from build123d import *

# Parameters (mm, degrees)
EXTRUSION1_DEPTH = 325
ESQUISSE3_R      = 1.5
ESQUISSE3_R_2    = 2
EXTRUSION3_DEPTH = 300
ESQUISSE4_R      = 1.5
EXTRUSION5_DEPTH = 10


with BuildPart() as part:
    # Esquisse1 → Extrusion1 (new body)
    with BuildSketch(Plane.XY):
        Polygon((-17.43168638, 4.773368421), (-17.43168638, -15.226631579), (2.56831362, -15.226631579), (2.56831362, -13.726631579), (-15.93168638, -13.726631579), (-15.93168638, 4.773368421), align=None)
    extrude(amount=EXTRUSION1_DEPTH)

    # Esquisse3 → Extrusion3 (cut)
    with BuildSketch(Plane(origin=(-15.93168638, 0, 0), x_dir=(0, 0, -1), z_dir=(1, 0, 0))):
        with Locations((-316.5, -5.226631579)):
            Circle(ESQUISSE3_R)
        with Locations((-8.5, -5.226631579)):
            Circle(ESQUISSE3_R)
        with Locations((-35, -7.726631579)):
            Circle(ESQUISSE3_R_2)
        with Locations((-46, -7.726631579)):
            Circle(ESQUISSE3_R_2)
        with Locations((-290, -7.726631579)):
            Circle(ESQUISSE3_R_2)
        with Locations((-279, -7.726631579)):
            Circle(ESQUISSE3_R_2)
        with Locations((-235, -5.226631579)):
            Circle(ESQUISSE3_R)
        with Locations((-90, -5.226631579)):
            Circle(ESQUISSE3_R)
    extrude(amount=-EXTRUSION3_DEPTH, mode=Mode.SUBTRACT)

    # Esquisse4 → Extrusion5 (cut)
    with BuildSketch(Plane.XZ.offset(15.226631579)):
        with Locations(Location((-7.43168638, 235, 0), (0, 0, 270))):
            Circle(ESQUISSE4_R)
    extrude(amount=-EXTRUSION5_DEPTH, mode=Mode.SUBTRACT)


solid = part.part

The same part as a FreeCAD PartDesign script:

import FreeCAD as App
import Part
import Sketcher

doc = App.newDocument("Part")
body = doc.addObject("PartDesign::Body", "Body")

# Sketch on XY plane
sketch1 = doc.addObject("Sketcher::SketchObject", "Sketch")
body.addObject(sketch1)
sketch1.AttachmentSupport = (doc.XY_Plane, [""])
sketch1.MapMode = "FlatFace"
sketch1.addGeometry([
    Part.LineSegment(App.Vector(-17.4, 4.8, 0), App.Vector(-17.4, -15.2, 0)),  # 0
    Part.LineSegment(App.Vector(-17.4, -15.2, 0), App.Vector(2.6, -15.2, 0)),  # 1
    Part.LineSegment(App.Vector(2.6, -15.2, 0), App.Vector(2.6, -13.7, 0)),  # 2
    Part.LineSegment(App.Vector(2.6, -13.7, 0), App.Vector(-15.9, -13.7, 0)),  # 3
    Part.LineSegment(App.Vector(-15.9, -13.7, 0), App.Vector(-15.9, 4.8, 0)),  # 4
    Part.LineSegment(App.Vector(-15.9, 4.8, 0), App.Vector(-17.4, 4.8, 0)),  # 5
], False)
sketch1.addConstraint([
    Sketcher.Constraint("Coincident", 0, 2, 1, 1),
    Sketcher.Constraint("Coincident", 1, 2, 2, 1),
    Sketcher.Constraint("Coincident", 2, 2, 3, 1),
    Sketcher.Constraint("Coincident", 3, 2, 4, 1),
    Sketcher.Constraint("Coincident", 4, 2, 5, 1),
    Sketcher.Constraint("Coincident", 5, 2, 0, 1),
    Sketcher.Constraint("Vertical", 0),
    Sketcher.Constraint("Horizontal", 1),
    Sketcher.Constraint("Vertical", 2),
    Sketcher.Constraint("Horizontal", 3),
    Sketcher.Constraint("Vertical", 4),
    Sketcher.Constraint("Horizontal", 5),
    Sketcher.Constraint("Equal", 1, 0),
    Sketcher.Constraint("Equal", 5, 2),
    Sketcher.Constraint("DistanceX", 1, 1, 1, 2, 20.0),
    Sketcher.Constraint("DistanceX", 3, 2, 3, 1, 18.5),
    Sketcher.Constraint("DistanceY", 0, 2, -1, 1, 15.226632),
    Sketcher.Constraint("DistanceX", 0, 2, -1, 1, 17.431686),
])
pad1 = doc.addObject("PartDesign::Pad", "Pad")
body.addObject(pad1)
pad1.Profile = sketch1
pad1.Length = 325

# Sketch on YZ plane
sketch2 = doc.addObject("Sketcher::SketchObject", "Sketch001")
body.addObject(sketch2)
sketch2.AttachmentSupport = (doc.YZ_Plane, [""])
sketch2.MapMode = "FlatFace"
sketch2.AttachmentOffset = App.Placement(App.Vector(0, 0, -15.931686), App.Rotation())
sketch2.addGeometry([
    Part.Circle(App.Vector(-5.2, 316.5, 0), App.Vector(0, 0, 1), 1.5),  # 0
    Part.Circle(App.Vector(-5.2, 8.5, 0), App.Vector(0, 0, 1), 1.5),  # 1
    Part.Circle(App.Vector(-7.7, 35, 0), App.Vector(0, 0, 1), 2),  # 2
    Part.Circle(App.Vector(-7.7, 46, 0), App.Vector(0, 0, 1), 2),  # 3
    Part.Circle(App.Vector(-7.7, 290, 0), App.Vector(0, 0, 1), 2),  # 4
    Part.Circle(App.Vector(-7.7, 279, 0), App.Vector(0, 0, 1), 2),  # 5
    Part.Circle(App.Vector(-5.2, 235, 0), App.Vector(0, 0, 1), 1.5),  # 6
    Part.Circle(App.Vector(-5.2, 90, 0), App.Vector(0, 0, 1), 1.5),  # 7
], False)
sketch2.addConstraint([
    Sketcher.Constraint("Equal", 0, 1),
    Sketcher.Constraint("Equal", 2, 3),
    Sketcher.Constraint("Equal", 3, 4),
    Sketcher.Constraint("Equal", 4, 5),
    Sketcher.Constraint("Equal", 1, 6),
    Sketcher.Constraint("Equal", 6, 7),
    Sketcher.Constraint("Vertical", 0, 3, 1, 3),
    Sketcher.Constraint("Vertical", 2, 3, 3, 3),
    Sketcher.Constraint("Vertical", 3, 3, 4, 3),
    Sketcher.Constraint("Vertical", 4, 3, 5, 3),
    Sketcher.Constraint("Vertical", 1, 3, 6, 3),
    Sketcher.Constraint("Vertical", 6, 3, 7, 3),
    Sketcher.Constraint("Diameter", 0, 3.0),
    Sketcher.Constraint("Diameter", 2, 4.0),
    Sketcher.Constraint("DistanceY", -1, 1, 2, 3, 35.0),
    Sketcher.Constraint("DistanceY", -1, 1, 3, 3, 46.0),
    Sketcher.Constraint("DistanceY", -1, 1, 4, 3, 290.0),
    Sketcher.Constraint("DistanceY", -1, 1, 5, 3, 279.0),
    Sketcher.Constraint("DistanceY", -1, 1, 6, 3, 235.0),
    Sketcher.Constraint("DistanceY", -1, 1, 7, 3, 90.0),
    Sketcher.Constraint("DistanceY", 1, 3, 0, 3, 308.0),
    Sketcher.Constraint("DistanceY", -1, 1, 0, 3, 316.5),
    Sketcher.Constraint("DistanceX", 2, 3, 1, 3, 2.5),
    Sketcher.Constraint("DistanceX", 0, 3, -1, 1, 5.226632),
])
pocket1 = doc.addObject("PartDesign::Pocket", "Pocket")
body.addObject(pocket1)
pocket1.Profile = sketch2
pocket1.Length = 300

# Sketch on XZ plane
sketch3 = doc.addObject("Sketcher::SketchObject", "Sketch002")
body.addObject(sketch3)
sketch3.AttachmentSupport = (doc.XZ_Plane, [""])
sketch3.MapMode = "FlatFace"
sketch3.AttachmentOffset = App.Placement(App.Vector(0, 0, 15.226632), App.Rotation())
sketch3.addGeometry(Part.Circle(App.Vector(-7.4, 235, 0), App.Vector(0, 0, 1), 1.5), False)
sketch3.addConstraint([
    Sketcher.Constraint("Diameter", 0, 3.0),
    Sketcher.Constraint("DistanceY", -1, 1, 0, 3, 235.0),
    Sketcher.Constraint("DistanceX", 0, 3, -1, 1, 7.431686),
])
pocket2 = doc.addObject("PartDesign::Pocket", "Pocket001")
body.addObject(pocket2)
pocket2.Profile = sketch3
pocket2.Length = 10

doc.recompute()
